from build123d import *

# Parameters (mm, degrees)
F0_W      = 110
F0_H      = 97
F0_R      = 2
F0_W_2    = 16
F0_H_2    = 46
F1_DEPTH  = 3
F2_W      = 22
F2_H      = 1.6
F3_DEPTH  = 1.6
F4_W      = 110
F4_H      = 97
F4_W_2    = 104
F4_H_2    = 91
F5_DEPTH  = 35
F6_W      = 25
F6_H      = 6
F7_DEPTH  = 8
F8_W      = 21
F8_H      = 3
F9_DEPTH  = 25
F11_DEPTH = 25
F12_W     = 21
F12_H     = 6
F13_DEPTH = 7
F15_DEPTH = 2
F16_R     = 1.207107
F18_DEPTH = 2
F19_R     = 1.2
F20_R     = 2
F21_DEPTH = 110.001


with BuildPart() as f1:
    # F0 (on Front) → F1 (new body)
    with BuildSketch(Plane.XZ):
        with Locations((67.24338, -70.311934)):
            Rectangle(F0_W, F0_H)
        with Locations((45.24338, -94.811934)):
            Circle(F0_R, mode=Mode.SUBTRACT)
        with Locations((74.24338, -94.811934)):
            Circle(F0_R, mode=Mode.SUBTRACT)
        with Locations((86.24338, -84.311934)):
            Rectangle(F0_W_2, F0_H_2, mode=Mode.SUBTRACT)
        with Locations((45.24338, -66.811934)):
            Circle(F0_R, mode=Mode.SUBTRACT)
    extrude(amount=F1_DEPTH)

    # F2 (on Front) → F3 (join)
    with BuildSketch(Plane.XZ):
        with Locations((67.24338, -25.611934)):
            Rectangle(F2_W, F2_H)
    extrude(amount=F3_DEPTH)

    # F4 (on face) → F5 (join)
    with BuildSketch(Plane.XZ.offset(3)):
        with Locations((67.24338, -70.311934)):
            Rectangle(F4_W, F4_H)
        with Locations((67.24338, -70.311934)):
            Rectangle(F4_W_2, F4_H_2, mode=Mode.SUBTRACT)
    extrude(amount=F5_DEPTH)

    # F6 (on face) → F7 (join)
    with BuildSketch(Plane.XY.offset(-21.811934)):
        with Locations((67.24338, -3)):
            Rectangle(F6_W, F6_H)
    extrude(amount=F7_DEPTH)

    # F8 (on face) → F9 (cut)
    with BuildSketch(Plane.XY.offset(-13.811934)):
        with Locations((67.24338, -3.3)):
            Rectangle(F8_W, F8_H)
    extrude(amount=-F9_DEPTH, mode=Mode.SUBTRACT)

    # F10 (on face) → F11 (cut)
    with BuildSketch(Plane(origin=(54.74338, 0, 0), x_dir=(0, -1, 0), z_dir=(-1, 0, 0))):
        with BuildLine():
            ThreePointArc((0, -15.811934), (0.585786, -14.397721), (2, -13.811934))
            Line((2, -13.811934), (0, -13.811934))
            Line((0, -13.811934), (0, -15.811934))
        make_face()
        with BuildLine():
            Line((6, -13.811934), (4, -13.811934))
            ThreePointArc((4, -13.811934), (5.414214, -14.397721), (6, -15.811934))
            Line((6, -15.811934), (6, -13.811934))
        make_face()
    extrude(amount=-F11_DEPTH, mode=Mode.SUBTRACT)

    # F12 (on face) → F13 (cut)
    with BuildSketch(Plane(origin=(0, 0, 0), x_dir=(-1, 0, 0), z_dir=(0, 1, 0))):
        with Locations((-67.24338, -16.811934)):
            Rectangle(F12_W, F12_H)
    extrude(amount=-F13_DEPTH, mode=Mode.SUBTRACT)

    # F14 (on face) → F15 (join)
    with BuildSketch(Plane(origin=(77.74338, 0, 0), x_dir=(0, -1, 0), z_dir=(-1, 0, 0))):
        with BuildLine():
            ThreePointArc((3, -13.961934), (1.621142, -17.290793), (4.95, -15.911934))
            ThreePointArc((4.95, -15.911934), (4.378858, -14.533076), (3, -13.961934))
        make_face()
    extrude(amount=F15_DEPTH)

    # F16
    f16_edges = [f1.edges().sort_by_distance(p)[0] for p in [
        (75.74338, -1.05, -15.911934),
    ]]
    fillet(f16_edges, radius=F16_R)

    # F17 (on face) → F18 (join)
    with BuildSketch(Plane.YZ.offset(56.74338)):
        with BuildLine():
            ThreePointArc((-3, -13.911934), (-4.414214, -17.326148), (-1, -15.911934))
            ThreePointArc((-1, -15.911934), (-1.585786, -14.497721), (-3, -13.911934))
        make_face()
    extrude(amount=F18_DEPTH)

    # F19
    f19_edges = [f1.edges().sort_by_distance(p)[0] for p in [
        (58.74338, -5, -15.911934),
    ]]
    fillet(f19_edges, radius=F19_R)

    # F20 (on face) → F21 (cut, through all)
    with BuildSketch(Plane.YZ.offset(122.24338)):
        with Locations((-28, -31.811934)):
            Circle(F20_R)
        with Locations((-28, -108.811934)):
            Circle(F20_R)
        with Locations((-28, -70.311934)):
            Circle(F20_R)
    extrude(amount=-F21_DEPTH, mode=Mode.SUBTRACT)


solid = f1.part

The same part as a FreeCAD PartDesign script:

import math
import FreeCAD as App
import Part
import Sketcher

V = App.Vector
Q = App.Units.Quantity


def edges_at(feature, points):
    """Names of the edges that pass closest to the given points."""
    edges = feature.Shape.Edges
    near = lambda p: min(range(len(edges)), key=lambda i: edges[i].distToShape(Part.Vertex(*p))[0])
    return sorted({f"Edge{near(p) + 1}" for p in points})

doc = App.newDocument("Part")
body = doc.addObject("PartDesign::Body", "Body")

# Sketch on XZ plane
sketch1 = body.newObject("Sketcher::SketchObject", "Sketch")
sketch1.AttachmentSupport = (doc.getObject("XZ_Plane"), [""])
sketch1.MapMode = "FlatFace"
sketch1.addGeometry([
    Part.LineSegment(V(12.2, -21.8, 0), V(12.2, -118.8, 0)),  # 0
    Part.LineSegment(V(12.2, -118.8, 0), V(122.2, -118.8, 0)),  # 1
    Part.LineSegment(V(122.2, -118.8, 0), V(122.2, -21.8, 0)),  # 2
    Part.LineSegment(V(122.2, -21.8, 0), V(12.2, -21.8, 0)),  # 3
    Part.Circle(V(45.2, -94.8, 0), V(0, 0, 1), 2),  # 4
    Part.Circle(V(74.2, -94.8, 0), V(0, 0, 1), 2),  # 5
    Part.Circle(V(45.2, -66.8, 0), V(0, 0, 1), 2),  # 6
    Part.LineSegment(V(94.2, -107.3, 0), V(78.2, -107.3, 0)),  # 7
    Part.LineSegment(V(78.2, -107.3, 0), V(78.2, -61.3, 0)),  # 8
    Part.LineSegment(V(78.2, -61.3, 0), V(94.2, -61.3, 0)),  # 9
    Part.LineSegment(V(94.2, -61.3, 0), V(94.2, -107.3, 0)),  # 10
], False)
sketch1.addConstraint([
    Sketcher.Constraint("Coincident", 0, 2, 1, 1),
    Sketcher.Constraint("Coincident", 1, 2, 2, 1),
    Sketcher.Constraint("Coincident", 2, 2, 3, 1),
    Sketcher.Constraint("Coincident", 3, 2, 0, 1),
    Sketcher.Constraint("Coincident", 7, 2, 8, 1),
    Sketcher.Constraint("Coincident", 8, 2, 9, 1),
    Sketcher.Constraint("Coincident", 9, 2, 10, 1),
    Sketcher.Constraint("Coincident", 10, 2, 7, 1),
    Sketcher.Constraint("Vertical", 0),
    Sketcher.Constraint("Horizontal", 1),
    Sketcher.Constraint("Vertical", 2),
    Sketcher.Constraint("Horizontal", 3),
    Sketcher.Constraint("Horizontal", 7),
    Sketcher.Constraint("Vertical", 8),
    Sketcher.Constraint("Horizontal", 9),
    Sketcher.Constraint("Vertical", 10),
    Sketcher.Constraint("Equal", 4, 5),
    Sketcher.Constraint("Equal", 5, 6),
    Sketcher.Constraint("Horizontal", 4, 3, 5, 3),
    Sketcher.Constraint("Vertical", 4, 3, 6, 3),
    Sketcher.Constraint("Diameter", 4, Q("4 mm")),
    Sketcher.Constraint("DistanceX", 1, 1, 1, 2, Q("110 mm")),
    Sketcher.Constraint("DistanceX", 7, 2, 7, 1, Q("16 mm")),
    Sketcher.Constraint("DistanceY", 0, 2, 0, 1, Q("97 mm")),
    Sketcher.Constraint("DistanceY", 8, 1, 8, 2, Q("46 mm")),
    Sketcher.Constraint("DistanceX", 4, 3, 5, 3, Q("29 mm")),
    Sketcher.Constraint("DistanceY", 4, 3, 6, 3, Q("28 mm")),
    Sketcher.Constraint("DistanceX", 0, 2, 4, 3, Q("33 mm")),
    Sketcher.Constraint("DistanceY", 0, 2, 4, 3, Q("24 mm")),
    Sketcher.Constraint("DistanceX", 5, 3, 7, 2, Q("4 mm")),
    Sketcher.Constraint("DistanceY", 7, 2, 5, 3, Q("12.5 mm")),
    Sketcher.Constraint("DistanceX", -1, 1, 4, 3, Q("45.24338 mm")),
    Sketcher.Constraint("DistanceY", 4, 3, -1, 1, Q("94.811934 mm")),
])
pad1 = body.newObject("PartDesign::Pad", "Pad")
pad1.Profile = sketch1
pad1.Length = 3

# Sketch on XZ plane
sketch2 = body.newObject("Sketcher::SketchObject", "Sketch001")
sketch2.AttachmentSupport = (doc.getObject("XZ_Plane"), [""])
sketch2.MapMode = "FlatFace"
sketch2.addGeometry([
    Part.LineSegment(V(56.2, -24.8, 0), V(56.2, -26.4, 0)),
    Part.LineSegment(V(56.2, -26.4, 0), V(78.2, -26.4, 0)),
    Part.LineSegment(V(78.2, -26.4, 0), V(78.2, -24.8, 0)),
    Part.LineSegment(V(78.2, -24.8, 0), V(56.2, -24.8, 0)),
], False)
sketch2.addConstraint([
    Sketcher.Constraint("Coincident", 0, 2, 1, 1),
    Sketcher.Constraint("Coincident", 1, 2, 2, 1),
    Sketcher.Constraint("Coincident", 2, 2, 3, 1),
    Sketcher.Constraint("Coincident", 3, 2, 0, 1),
    Sketcher.Constraint("Vertical", 0),
    Sketcher.Constraint("Horizontal", 1),
    Sketcher.Constraint("Vertical", 2),
    Sketcher.Constraint("Horizontal", 3),
    Sketcher.Constraint("DistanceX", 1, 1, 1, 2, Q("22 mm")),
    Sketcher.Constraint("DistanceY", 0, 2, 0, 1, Q("1.6 mm")),
    Sketcher.Constraint("DistanceX", -1, 1, 0, 2, Q("56.24338 mm")),
    Sketcher.Constraint("DistanceY", 0, 2, -1, 1, Q("26.411934 mm")),
])
pad2 = body.newObject("PartDesign::Pad", "Pad001")
pad2.Profile = sketch2
pad2.Length = 1.6

# Sketch on XZ plane
sketch3 = body.newObject("Sketcher::SketchObject", "Sketch002")
sketch3.AttachmentSupport = (doc.getObject("XZ_Plane"), [""])
sketch3.MapMode = "FlatFace"
sketch3.AttachmentOffset = App.Placement(V(0, 0, 3), App.Rotation())
sketch3.addGeometry([
    Part.LineSegment(V(12, -22, 0), V(12, -119, 0)),  # 0
    Part.LineSegment(V(12, -119, 0), V(122, -119, 0)),  # 1
    Part.LineSegment(V(122, -119, 0), V(122, -22, 0)),  # 2
    Part.LineSegment(V(122, -22, 0), V(12, -22, 0)),  # 3
    Part.LineSegment(V(119, -116, 0), V(15, -116, 0)),  # 4
    Part.LineSegment(V(15, -116, 0), V(15, -25, 0)),  # 5
    Part.LineSegment(V(15, -25, 0), V(119, -25, 0)),  # 6
    Part.LineSegment(V(119, -25, 0), V(119, -116, 0)),  # 7
], False)
sketch3.addConstraint([
    Sketcher.Constraint("Coincident", 0, 2, 1, 1),
    Sketcher.Constraint("Coincident", 1, 2, 2, 1),
    Sketcher.Constraint("Coincident", 2, 2, 3, 1),
    Sketcher.Constraint("Coincident", 3, 2, 0, 1),
    Sketcher.Constraint("Coincident", 4, 2, 5, 1),
    Sketcher.Constraint("Coincident", 5, 2, 6, 1),
    Sketcher.Constraint("Coincident", 6, 2, 7, 1),
    Sketcher.Constraint("Coincident", 7, 2, 4, 1),
    Sketcher.Constraint("Vertical", 0),
    Sketcher.Constraint("Horizontal", 1),
    Sketcher.Constraint("Vertical", 2),
    Sketcher.Constraint("Horizontal", 3),
    Sketcher.Constraint("Horizontal", 4),
    Sketcher.Constraint("Vertical", 5),
    Sketcher.Constraint("Horizontal", 6),
    Sketcher.Constraint("Vertical", 7),
    Sketcher.Constraint("DistanceX", 1, 1, 1, 2, Q("110 mm")),
    Sketcher.Constraint("DistanceX", 4, 2, 4, 1, Q("104 mm")),
    Sketcher.Constraint("DistanceY", 0, 2, 0, 1, Q("97 mm")),
    Sketcher.Constraint("DistanceY", 5, 1, 5, 2, Q("91 mm")),
    Sketcher.Constraint("DistanceX", 0, 2, 4, 2, Q("3 mm")),
    Sketcher.Constraint("DistanceY", 0, 2, 4, 2, Q("3 mm")),
    Sketcher.Constraint("DistanceX", -1, 1, 0, 2, Q("12.24338 mm")),
    Sketcher.Constraint("DistanceY", 0, 2, -1, 1, Q("118.811934 mm")),
])
pad3 = body.newObject("PartDesign::Pad", "Pad002")
pad3.Profile = sketch3
pad3.Length = 35

# Sketch on XY plane
sketch4 = body.newObject("Sketcher::SketchObject", "Sketch003")
sketch4.AttachmentSupport = (doc.getObject("XY_Plane"), [""])
sketch4.MapMode = "FlatFace"
sketch4.AttachmentOffset = App.Placement(V(0, 0, -21.811934), App.Rotation())
sketch4.addGeometry([
    Part.LineSegment(V(55, 0, 0), V(55, -6, 0)),
    Part.LineSegment(V(55, -6, 0), V(80, -6, 0)),
    Part.LineSegment(V(80, -6, 0), V(80, 0, 0)),
    Part.LineSegment(V(80, 0, 0), V(55, 0, 0)),
], False)
sketch4.addConstraint([
    Sketcher.Constraint("Coincident", 0, 2, 1, 1),
    Sketcher.Constraint("Coincident", 1, 2, 2, 1),
    Sketcher.Constraint("Coincident", 2, 2, 3, 1),
    Sketcher.Constraint("Coincident", 3, 2, 0, 1),
    Sketcher.Constraint("Vertical", 0),
    Sketcher.Constraint("Horizontal", 1),
    Sketcher.Constraint("Vertical", 2),
    Sketcher.Constraint("Horizontal", 3),
    Sketcher.Constraint("PointOnObject", 2, 2, -1),
    Sketcher.Constraint("DistanceX", 1, 1, 1, 2, Q("25 mm")),
    Sketcher.Constraint("DistanceY", 0, 2, 0, 1, Q("6 mm")),
    Sketcher.Constraint("DistanceX", -1, 1, 0, 2, Q("54.74338 mm")),
])
pad4 = body.newObject("PartDesign::Pad", "Pad003")
pad4.Profile = sketch4
pad4.Length = 8

# Sketch on XY plane
sketch5 = body.newObject("Sketcher::SketchObject", "Sketch004")
sketch5.AttachmentSupport = (doc.getObject("XY_Plane"), [""])
sketch5.MapMode = "FlatFace"
sketch5.AttachmentOffset = App.Placement(V(0, 0, -13.811934), App.Rotation())
sketch5.addGeometry([
    Part.LineSegment(V(56.7, -1.8, 0), V(56.7, -4.8, 0)),
    Part.LineSegment(V(56.7, -4.8, 0), V(77.7, -4.8, 0)),
    Part.LineSegment(V(77.7, -4.8, 0), V(77.7, -1.8, 0)),
    Part.LineSegment(V(77.7, -1.8, 0), V(56.7, -1.8, 0)),
], False)
sketch5.addConstraint([
    Sketcher.Constraint("Coincident", 0, 2, 1, 1),
    Sketcher.Constraint("Coincident", 1, 2, 2, 1),
    Sketcher.Constraint("Coincident", 2, 2, 3, 1),
    Sketcher.Constraint("Coincident", 3, 2, 0, 1),
    Sketcher.Constraint("Vertical", 0),
    Sketcher.Constraint("Horizontal", 1),
    Sketcher.Constraint("Vertical", 2),
    Sketcher.Constraint("Horizontal", 3),
    Sketcher.Constraint("DistanceX", 1, 1, 1, 2, Q("21 mm")),
    Sketcher.Constraint("DistanceY", 0, 2, 0, 1, Q("3 mm")),
    Sketcher.Constraint("DistanceY", 0, 2, -1, 1, Q("4.8 mm")),
    Sketcher.Constraint("DistanceX", -1, 1, 0, 2, Q("56.74338 mm")),
])
pocket1 = body.newObject("PartDesign::Pocket", "Pocket")
pocket1.Profile = sketch5
pocket1.Length = 25

# Sketch on YZ plane
sketch6 = body.newObject("Sketcher::SketchObject", "Sketch005")
sketch6.AttachmentSupport = (doc.getObject("YZ_Plane"), [""])
sketch6.MapMode = "FlatFace"
sketch6.AttachmentOffset = App.Placement(V(0, 0, 54.74338), App.Rotation())
sketch6.addGeometry([
    Part.ArcOfCircle(Part.Circle(V(-2, -15.8, 0), V(0, 0, 1), 2), math.radians(0), math.radians(90)),  # 0
    Part.LineSegment(V(-2, -13.8, 0), V(0, -13.8, 0)),  # 1
    Part.LineSegment(V(0, -13.8, 0), V(0, -15.8, 0)),  # 2
    Part.LineSegment(V(-6, -13.8, 0), V(-4, -13.8, 0)),  # 3
    Part.ArcOfCircle(Part.Circle(V(-4, -15.8, 0), V(0, 0, 1), 2), math.radians(90), math.radians(180)),  # 4
    Part.LineSegment(V(-6, -15.8, 0), V(-6, -13.8, 0)),  # 5
], False)
sketch6.addConstraint([
    Sketcher.Constraint("Tangent", 0, 2, 1, 1),
    Sketcher.Constraint("Coincident", 1, 2, 2, 1),
    Sketcher.Constraint("Tangent", 2, 2, 0, 1),
    Sketcher.Constraint("Tangent", 3, 2, 4, 1),
    Sketcher.Constraint("Tangent", 4, 2, 5, 1),
    Sketcher.Constraint("Coincident", 5, 2, 3, 1),
    Sketcher.Constraint("Horizontal", 1),
    Sketcher.Constraint("Vertical", 2),
    Sketcher.Constraint("Horizontal", 3),
    Sketcher.Constraint("Vertical", 5),
    Sketcher.Constraint("Equal", 0, 4),
    Sketcher.Constraint("PointOnObject", 1, 2, -2),
    Sketcher.Constraint("Horizontal", 0, 3, 4, 3),
    Sketcher.Constraint("Radius", 0, Q("2 mm")),
    Sketcher.Constraint("DistanceX", 4, 3, -1, 1, Q("4 mm")),
    Sketcher.Constraint("DistanceY", 0, 3, -1, 1, Q("15.811934 mm")),
])
pocket2 = body.newObject("PartDesign::Pocket", "Pocket001")
pocket2.Profile = sketch6
pocket2.Length = 25
pocket2.Reversed = True

# Sketch on XZ plane
sketch7 = body.newObject("Sketcher::SketchObject", "Sketch006")
sketch7.AttachmentSupport = (doc.getObject("XZ_Plane"), [""])
sketch7.MapMode = "FlatFace"
sketch7.addGeometry([
    Part.LineSegment(V(78, -14, 0), V(78, -20, 0)),
    Part.LineSegment(V(78, -20, 0), V(57, -20, 0)),
    Part.LineSegment(V(57, -20, 0), V(57, -14, 0)),
    Part.LineSegment(V(57, -14, 0), V(78, -14, 0)),
], False)
sketch7.addConstraint([
    Sketcher.Constraint("Coincident", 0, 2, 1, 1),
    Sketcher.Constraint("Coincident", 1, 2, 2, 1),
    Sketcher.Constraint("Coincident", 2, 2, 3, 1),
    Sketcher.Constraint("Coincident", 3, 2, 0, 1),
    Sketcher.Constraint("Vertical", 0),
    Sketcher.Constraint("Horizontal", 1),
    Sketcher.Constraint("Vertical", 2),
    Sketcher.Constraint("Horizontal", 3),
    Sketcher.Constraint("DistanceX", 1, 2, 1, 1, Q("21 mm")),
    Sketcher.Constraint("DistanceY", 0, 2, 0, 1, Q("6 mm")),
    Sketcher.Constraint("DistanceX", -1, 1, 0, 2, Q("77.74338 mm")),
    Sketcher.Constraint("DistanceY", 0, 2, -1, 1, Q("19.811934 mm")),
])
pocket3 = body.newObject("PartDesign::Pocket", "Pocket002")
pocket3.Profile = sketch7
pocket3.Length = 7
pocket3.Reversed = True

# Sketch on YZ plane
sketch8 = body.newObject("Sketcher::SketchObject", "Sketch007")
sketch8.AttachmentSupport = (doc.getObject("YZ_Plane"), [""])
sketch8.MapMode = "FlatFace"
sketch8.AttachmentOffset = App.Placement(V(0, 0, 77.74338), App.Rotation())
sketch8.addGeometry([
    Part.ArcOfCircle(Part.Circle(V(-3, -15.9, 0), V(0, 0, 1), 2), math.radians(180), math.radians(450)),
    Part.ArcOfCircle(Part.Circle(V(-3, -15.9, 0), V(0, 0, 1), 2), math.radians(90), math.radians(180)),
], False)
sketch8.addConstraint([
    Sketcher.Constraint("Tangent", 0, 1, 1, 2),
    Sketcher.Constraint("Coincident", 1, 1, 0, 2),
    Sketcher.Constraint("Horizontal", 1, 3, 0, 1),
    Sketcher.Constraint("Vertical", 0, 3, 1, 1),
    Sketcher.Constraint("Radius", 0, Q("1.95 mm")),
    Sketcher.Constraint("DistanceX", 0, 3, -1, 1, Q("3 mm")),
    Sketcher.Constraint("DistanceY", 0, 3, -1, 1, Q("15.911934 mm")),
])
pad5 = body.newObject("PartDesign::Pad", "Pad004")
pad5.Profile = sketch8
pad5.Length = 2
pad5.Reversed = True
doc.recompute()

fillet = body.newObject("PartDesign::Fillet", "Fillet")
fillet.Base = (pad5, edges_at(pad5, [(75.743, -1.621, -17.291)]))
fillet.Radius = 1.207107

# Sketch on YZ plane
sketch9 = body.newObject("Sketcher::SketchObject", "Sketch008")
sketch9.AttachmentSupport = (doc.getObject("YZ_Plane"), [""])
sketch9.MapMode = "FlatFace"
sketch9.AttachmentOffset = App.Placement(V(0, 0, 56.74338), App.Rotation())
sketch9.addGeometry([
    Part.ArcOfCircle(Part.Circle(V(-3, -15.9, 0), V(0, 0, 1), 2), math.radians(90), math.radians(360)),
    Part.ArcOfCircle(Part.Circle(V(-3, -15.9, 0), V(0, 0, 1), 2), math.radians(0), math.radians(90)),
], False)
sketch9.addConstraint([
    Sketcher.Constraint("Tangent", 0, 1, 1, 2),
    Sketcher.Constraint("Coincident", 1, 1, 0, 2),
    Sketcher.Constraint("Horizontal", 0, 3, 1, 1),
    Sketcher.Constraint("Vertical", 1, 3, 0, 1),
    Sketcher.Constraint("Radius", 0, Q("2 mm")),
    Sketcher.Constraint("DistanceX", 0, 3, -1, 1, Q("3 mm")),
    Sketcher.Constraint("DistanceY", 0, 3, -1, 1, Q("15.911934 mm")),
])
pad6 = body.newObject("PartDesign::Pad", "Pad005")
pad6.Profile = sketch9
pad6.Length = 2
doc.recompute()

fillet2 = body.newObject("PartDesign::Fillet", "Fillet001")
fillet2.Base = (pad6, edges_at(pad6, [(58.743, -4.414, -17.326)]))
fillet2.Radius = 1.2

# Sketch on YZ plane
sketch10 = body.newObject("Sketcher::SketchObject", "Sketch009")
sketch10.AttachmentSupport = (doc.getObject("YZ_Plane"), [""])
sketch10.MapMode = "FlatFace"
sketch10.AttachmentOffset = App.Placement(V(0, 0, 122.24338), App.Rotation())
sketch10.addGeometry([
    Part.Circle(V(-28, -31.8, 0), V(0, 0, 1), 2),
    Part.Circle(V(-28, -108.8, 0), V(0, 0, 1), 2),
    Part.Circle(V(-28, -70.3, 0), V(0, 0, 1), 2),
], False)
sketch10.addConstraint([
    Sketcher.Constraint("Equal", 0, 1),
    Sketcher.Constraint("Equal", 1, 2),
    Sketcher.Constraint("Vertical", 0, 3, 1, 3),
    Sketcher.Constraint("Vertical", 1, 3, 2, 3),
    Sketcher.Constraint("Diameter", 0, Q("4 mm")),
    Sketcher.Constraint("DistanceX", 0, 3, -1, 1, Q("28 mm")),
    Sketcher.Constraint("DistanceY", 1, 3, 0, 3, Q("77 mm")),
    Sketcher.Constraint("DistanceY", 2, 3, 0, 3, Q("38.5 mm")),
    Sketcher.Constraint("DistanceY", 0, 3, -1, 1, Q("31.811934 mm")),
])
pocket4 = body.newObject("PartDesign::Pocket", "Pocket003")
pocket4.Profile = sketch10
pocket4.Type = "ThroughAll"

doc.recompute()
